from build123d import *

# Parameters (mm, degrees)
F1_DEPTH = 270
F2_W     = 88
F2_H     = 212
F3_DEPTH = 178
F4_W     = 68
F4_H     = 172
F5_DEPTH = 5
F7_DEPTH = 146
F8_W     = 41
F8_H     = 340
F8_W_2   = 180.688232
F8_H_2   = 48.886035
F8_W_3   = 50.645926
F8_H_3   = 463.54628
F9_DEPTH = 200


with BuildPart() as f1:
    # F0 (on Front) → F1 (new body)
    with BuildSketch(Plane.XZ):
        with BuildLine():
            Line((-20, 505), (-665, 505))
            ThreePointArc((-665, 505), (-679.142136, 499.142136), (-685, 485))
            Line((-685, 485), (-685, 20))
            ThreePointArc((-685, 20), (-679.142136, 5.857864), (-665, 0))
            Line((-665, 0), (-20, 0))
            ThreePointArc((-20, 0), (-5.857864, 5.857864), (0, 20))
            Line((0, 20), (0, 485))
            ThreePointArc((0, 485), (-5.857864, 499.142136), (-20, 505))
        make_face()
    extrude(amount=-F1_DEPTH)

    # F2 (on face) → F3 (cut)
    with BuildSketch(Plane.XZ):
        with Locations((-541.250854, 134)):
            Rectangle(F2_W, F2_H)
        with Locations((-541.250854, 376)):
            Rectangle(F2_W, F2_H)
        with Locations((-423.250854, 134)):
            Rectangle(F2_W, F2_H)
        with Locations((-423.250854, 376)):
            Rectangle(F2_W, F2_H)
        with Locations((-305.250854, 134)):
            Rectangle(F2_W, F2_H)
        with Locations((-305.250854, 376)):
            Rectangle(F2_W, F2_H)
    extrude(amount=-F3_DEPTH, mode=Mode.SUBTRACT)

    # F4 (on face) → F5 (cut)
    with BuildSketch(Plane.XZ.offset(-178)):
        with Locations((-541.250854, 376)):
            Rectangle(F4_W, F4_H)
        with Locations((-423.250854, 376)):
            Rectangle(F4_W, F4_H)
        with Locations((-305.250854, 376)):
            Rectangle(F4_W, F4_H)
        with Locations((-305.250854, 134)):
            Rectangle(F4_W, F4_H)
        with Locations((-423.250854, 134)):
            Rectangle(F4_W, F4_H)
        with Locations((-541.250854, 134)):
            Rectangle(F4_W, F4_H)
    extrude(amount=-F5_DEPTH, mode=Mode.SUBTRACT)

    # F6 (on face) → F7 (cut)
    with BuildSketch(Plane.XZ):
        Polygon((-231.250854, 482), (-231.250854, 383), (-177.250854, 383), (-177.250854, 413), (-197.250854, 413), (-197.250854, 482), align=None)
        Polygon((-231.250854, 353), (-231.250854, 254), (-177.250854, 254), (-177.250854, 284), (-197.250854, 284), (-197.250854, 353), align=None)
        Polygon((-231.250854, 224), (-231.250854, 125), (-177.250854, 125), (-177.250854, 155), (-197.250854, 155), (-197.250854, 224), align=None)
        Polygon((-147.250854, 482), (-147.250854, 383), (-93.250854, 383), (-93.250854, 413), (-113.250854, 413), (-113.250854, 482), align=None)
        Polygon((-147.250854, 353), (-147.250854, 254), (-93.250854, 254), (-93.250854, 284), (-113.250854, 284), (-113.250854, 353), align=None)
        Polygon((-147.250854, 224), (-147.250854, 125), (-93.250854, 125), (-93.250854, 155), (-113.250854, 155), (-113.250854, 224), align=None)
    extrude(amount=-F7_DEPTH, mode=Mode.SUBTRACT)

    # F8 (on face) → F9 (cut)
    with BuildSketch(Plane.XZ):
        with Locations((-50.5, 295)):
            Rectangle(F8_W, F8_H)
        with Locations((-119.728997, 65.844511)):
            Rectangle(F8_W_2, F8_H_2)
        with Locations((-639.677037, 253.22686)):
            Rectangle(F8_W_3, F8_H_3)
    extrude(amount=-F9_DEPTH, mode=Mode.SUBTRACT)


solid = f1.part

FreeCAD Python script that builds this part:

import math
import FreeCAD as App
import Part
import Sketcher

V = App.Vector

doc = App.newDocument("Part")
params = doc.addObject("Spreadsheet::Sheet", "Params")
for row, (alias, value) in enumerate([
    ("sketch1_radius", "19.999999 mm"),
    ("sketch1_width", "645 mm"),
    ("sketch1_height", "465 mm"),
    ("pad1_length", "270 mm"),
    ("sketch2_width", "88 mm"),
    ("sketch2_height", "212 mm"),
    ("pocket1_length", "178 mm"),
    ("sketch3_width", "68 mm"),
    ("sketch3_height", "172 mm"),
    ("pocket2_length", "5 mm"),
    ("sketch4_width", "54 mm"),
    ("sketch4_width2", "20 mm"),
    ("sketch4_height", "99 mm"),
    ("sketch4_height2", "30 mm"),
    ("pocket3_length", "146 mm"),
    ("sketch5_width", "41 mm"),
    ("sketch5_height", "340 mm"),
    ("pocket4_length", "200 mm"),
], start=1):
    params.set(f"A{row}", alias)
    params.set(f"B{row}", "=" + value)
    params.setAlias(f"B{row}", alias)

body = doc.addObject("PartDesign::Body", "Body")

sketch1 = body.newObject("Sketcher::SketchObject", "Sketch")
sketch1.AttachmentSupport = (doc.getObject("XZ_Plane"), [""])
sketch1.MapMode = "FlatFace"
sketch1.addGeometry([
    Part.LineSegment(V(-20, 505, 0), V(-665, 505, 0)),
    Part.ArcOfCircle(Part.Circle(V(-665, 485, 0), V(0, 0, 1), 20), math.radians(90), math.radians(180)),
    Part.LineSegment(V(-685, 485, 0), V(-685, 20, 0)),
    Part.ArcOfCircle(Part.Circle(V(-665, 20, 0), V(0, 0, 1), 20), math.radians(180), math.radians(270)),
    Part.LineSegment(V(-665, 0, 0), V(-20, 0, 0)),
    Part.ArcOfCircle(Part.Circle(V(-20, 20, 0), V(0, 0, 1), 20), math.radians(-90), math.radians(0)),
    Part.LineSegment(V(0, 20, 0), V(0, 485, 0)),
    Part.ArcOfCircle(Part.Circle(V(-20, 485, 0), V(0, 0, 1), 20), math.radians(0), math.radians(90)),
], False)
sketch1.addConstraint([
    Sketcher.Constraint("Tangent", 0, 2, 1, 1),
    Sketcher.Constraint("Tangent", 1, 2, 2, 1),
    Sketcher.Constraint("Tangent", 2, 2, 3, 1),
    Sketcher.Constraint("Tangent", 3, 2, 4, 1),
    Sketcher.Constraint("Tangent", 4, 2, 5, 1),
    Sketcher.Constraint("Tangent", 5, 2, 6, 1),
    Sketcher.Constraint("Tangent", 6, 2, 7, 1),
    Sketcher.Constraint("Tangent", 7, 2, 0, 1),
    Sketcher.Constraint("Horizontal", 0),
    Sketcher.Constraint("Vertical", 2),
    Sketcher.Constraint("Horizontal", 4),
    Sketcher.Constraint("Vertical", 6),
    Sketcher.Constraint("Equal", 1, 3),
    Sketcher.Constraint("Equal", 3, 5),
    Sketcher.Constraint("Equal", 5, 7),
    Sketcher.Constraint("PointOnObject", 3, 2, -1),
    Sketcher.Constraint("PointOnObject", 5, 2, -2),
    Sketcher.Constraint("Radius", 1, 19.999999),
    Sketcher.Constraint("DistanceX", 0, 2, 0, 1, 645.0),
    Sketcher.Constraint("DistanceY", 2, 2, 2, 1, 465.0),
])
sketch1.setExpression("Constraints[17]", "Params.sketch1_radius")
sketch1.setExpression("Constraints[18]", "Params.sketch1_width")
sketch1.setExpression("Constraints[19]", "Params.sketch1_height")
pad1 = body.newObject("PartDesign::Pad", "Pad")
pad1.Profile = sketch1
pad1.setExpression("Length", "Params.pad1_length")
pad1.Reversed = True

sketch2 = body.newObject("Sketcher::SketchObject", "Sketch001")
sketch2.AttachmentSupport = (doc.getObject("XZ_Plane"), [""])
sketch2.MapMode = "FlatFace"
sketch2.addGeometry([
    Part.LineSegment(V(-585, 240, 0), V(-585, 28, 0)),
    Part.LineSegment(V(-585, 28, 0), V(-497, 28, 0)),
    Part.LineSegment(V(-497, 28, 0), V(-497, 240, 0)),
    Part.LineSegment(V(-497, 240, 0), V(-585, 240, 0)),
    Part.LineSegment(V(-585, 482, 0), V(-585, 270, 0)),
    Part.LineSegment(V(-585, 270, 0), V(-497, 270, 0)),
    Part.LineSegment(V(-497, 270, 0), V(-497, 482, 0)),
    Part.LineSegment(V(-497, 482, 0), V(-585, 482, 0)),
    Part.LineSegment(V(-467, 240, 0), V(-467, 28, 0)),
    Part.LineSegment(V(-467, 28, 0), V(-379, 28, 0)),
    Part.LineSegment(V(-379, 28, 0), V(-379, 240, 0)),
    Part.LineSegment(V(-379, 240, 0), V(-467, 240, 0)),
    Part.LineSegment(V(-467, 482, 0), V(-467, 270, 0)),
    Part.LineSegment(V(-467, 270, 0), V(-379, 270, 0)),
    Part.LineSegment(V(-379, 270, 0), V(-379, 482, 0)),
    Part.LineSegment(V(-379, 482, 0), V(-467, 482, 0)),
    Part.LineSegment(V(-349, 240, 0), V(-349, 28, 0)),
    Part.LineSegment(V(-349, 28, 0), V(-261, 28, 0)),
    Part.LineSegment(V(-261, 28, 0), V(-261, 240, 0)),
    Part.LineSegment(V(-261, 240, 0), V(-349, 240, 0)),
    Part.LineSegment(V(-349, 482, 0), V(-349, 270, 0)),
    Part.LineSegment(V(-349, 270, 0), V(-261, 270, 0)),
    Part.LineSegment(V(-261, 270, 0), V(-261, 482, 0)),
    Part.LineSegment(V(-261, 482, 0), V(-349, 482, 0)),
], False)
sketch2.addConstraint([
    Sketcher.Constraint("Coincident", 0, 2, 1, 1),
    Sketcher.Constraint("Coincident", 1, 2, 2, 1),
    Sketcher.Constraint("Coincident", 2, 2, 3, 1),
    Sketcher.Constraint("Coincident", 3, 2, 0, 1),
    Sketcher.Constraint("Coincident", 4, 2, 5, 1),
    Sketcher.Constraint("Coincident", 5, 2, 6, 1),
    Sketcher.Constraint("Coincident", 6, 2, 7, 1),
    Sketcher.Constraint("Coincident", 7, 2, 4, 1),
    Sketcher.Constraint("Coincident", 8, 2, 9, 1),
    Sketcher.Constraint("Coincident", 9, 2, 10, 1),
    Sketcher.Constraint("Coincident", 10, 2, 11, 1),
    Sketcher.Constraint("Coincident", 11, 2, 8, 1),
    Sketcher.Constraint("Coincident", 12, 2, 13, 1),
    Sketcher.Constraint("Coincident", 13, 2, 14, 1),
    Sketcher.Constraint("Coincident", 14, 2, 15, 1),
    Sketcher.Constraint("Coincident", 15, 2, 12, 1),
    Sketcher.Constraint("Coincident", 16, 2, 17, 1),
    Sketcher.Constraint("Coincident", 17, 2, 18, 1),
    Sketcher.Constraint("Coincident", 18, 2, 19, 1),
    Sketcher.Constraint("Coincident", 19, 2, 16, 1),
    Sketcher.Constraint("Coincident", 20, 2, 21, 1),
    Sketcher.Constraint("Coincident", 21, 2, 22, 1),
    Sketcher.Constraint("Coincident", 22, 2, 23, 1),
    Sketcher.Constraint("Coincident", 23, 2, 20, 1),
    Sketcher.Constraint("Vertical", 0),
    Sketcher.Constraint("Horizontal", 1),
    Sketcher.Constraint("Vertical", 2),
    Sketcher.Constraint("Horizontal", 3),
    Sketcher.Constraint("Vertical", 4),
    Sketcher.Constraint("Horizontal", 5),
    Sketcher.Constraint("Vertical", 6),
    Sketcher.Constraint("Horizontal", 7),
    Sketcher.Constraint("Vertical", 8),
    Sketcher.Constraint("Horizontal", 9),
    Sketcher.Constraint("Vertical", 10),
    Sketcher.Constraint("Horizontal", 11),
    Sketcher.Constraint("Vertical", 12),
    Sketcher.Constraint("Horizontal", 13),
    Sketcher.Constraint("Vertical", 14),
    Sketcher.Constraint("Horizontal", 15),
    Sketcher.Constraint("Vertical", 16),
    Sketcher.Constraint("Horizontal", 17),
    Sketcher.Constraint("Vertical", 18),
    Sketcher.Constraint("Horizontal", 19),
    Sketcher.Constraint("Vertical", 20),
    Sketcher.Constraint("Horizontal", 21),
    Sketcher.Constraint("Vertical", 22),
    Sketcher.Constraint("Horizontal", 23),
    Sketcher.Constraint("Horizontal", 1, 2, 8, 2),
    Sketcher.Constraint("Horizontal", 3, 2, 10, 2),
    Sketcher.Constraint("Horizontal", 5, 2, 12, 2),
    Sketcher.Constraint("Horizontal", 7, 2, 14, 2),
    Sketcher.Constraint("Horizontal", 9, 2, 16, 2),
    Sketcher.Constraint("Horizontal", 11, 2, 18, 2),
    Sketcher.Constraint("Horizontal", 13, 2, 20, 2),
    Sketcher.Constraint("Horizontal", 15, 2, 22, 2),
    Sketcher.Constraint("Vertical", 3, 2, 4, 2),
    Sketcher.Constraint("Vertical", 2, 2, 5, 2),
    Sketcher.Constraint("Vertical", 11, 2, 12, 2),
    Sketcher.Constraint("Vertical", 10, 2, 13, 2),
    Sketcher.Constraint("Vertical", 19, 2, 20, 2),
    Sketcher.Constraint("Vertical", 18, 2, 21, 2),
    Sketcher.Constraint("Equal", 7, 9),
    Sketcher.Constraint("Equal", 15, 17),
    Sketcher.Constraint("Equal", 2, 4),
    Sketcher.Constraint("DistanceX", 1, 1, 1, 2, 88.0),
    Sketcher.Constraint("DistanceY", 0, 2, 0, 1, 212.0),
    Sketcher.Constraint("DistanceY", -1, 1, 0, 2, 28.0),
    Sketcher.Constraint("DistanceY", -1, 1, 4, 2, 270.0),
    Sketcher.Constraint("DistanceX", 1, 2, 8, 2, 30.0),
    Sketcher.Constraint("DistanceX", 9, 2, 16, 2, 30.0),
    Sketcher.Constraint("DistanceX", 0, 2, -1, 1, 585.250854),
])
sketch2.setExpression("Constraints[65]", "Params.sketch2_width")
sketch2.setExpression("Constraints[66]", "Params.sketch2_height")
pocket1 = body.newObject("PartDesign::Pocket", "Pocket")
pocket1.Profile = sketch2
pocket1.setExpression("Length", "Params.pocket1_length")

sketch3 = body.newObject("Sketcher::SketchObject", "Sketch002")
sketch3.AttachmentSupport = (doc.getObject("XZ_Plane"), [""])
sketch3.MapMode = "FlatFace"
sketch3.AttachmentOffset = App.Placement(V(0, 0, -178), App.Rotation())
sketch3.addGeometry([
    Part.LineSegment(V(-575, 462, 0), V(-575, 290, 0)),
    Part.LineSegment(V(-575, 290, 0), V(-507, 290, 0)),
    Part.LineSegment(V(-507, 290, 0), V(-507, 462, 0)),
    Part.LineSegment(V(-507, 462, 0), V(-575, 462, 0)),
    Part.LineSegment(V(-457, 462, 0), V(-457, 290, 0)),
    Part.LineSegment(V(-457, 290, 0), V(-389, 290, 0)),
    Part.LineSegment(V(-389, 290, 0), V(-389, 462, 0)),
    Part.LineSegment(V(-389, 462, 0), V(-457, 462, 0)),
    Part.LineSegment(V(-339, 462, 0), V(-339, 290, 0)),
    Part.LineSegment(V(-339, 290, 0), V(-271, 290, 0)),
    Part.LineSegment(V(-271, 290, 0), V(-271, 462, 0)),
    Part.LineSegment(V(-271, 462, 0), V(-339, 462, 0)),
    Part.LineSegment(V(-339, 220, 0), V(-339, 48, 0)),
    Part.LineSegment(V(-339, 48, 0), V(-271, 48, 0)),
    Part.LineSegment(V(-271, 48, 0), V(-271, 220, 0)),
    Part.LineSegment(V(-271, 220, 0), V(-339, 220, 0)),
    Part.LineSegment(V(-457, 220, 0), V(-457, 48, 0)),
    Part.LineSegment(V(-457, 48, 0), V(-389, 48, 0)),
    Part.LineSegment(V(-389, 48, 0), V(-389, 220, 0)),
    Part.LineSegment(V(-389, 220, 0), V(-457, 220, 0)),
    Part.LineSegment(V(-575, 220, 0), V(-575, 48, 0)),
    Part.LineSegment(V(-575, 48, 0), V(-507, 48, 0)),
    Part.LineSegment(V(-507, 48, 0), V(-507, 220, 0)),
    Part.LineSegment(V(-507, 220, 0), V(-575, 220, 0)),
], False)
sketch3.addConstraint([
    Sketcher.Constraint("Coincident", 0, 2, 1, 1),
    Sketcher.Constraint("Coincident", 1, 2, 2, 1),
    Sketcher.Constraint("Coincident", 2, 2, 3, 1),
    Sketcher.Constraint("Coincident", 3, 2, 0, 1),
    Sketcher.Constraint("Coincident", 4, 2, 5, 1),
    Sketcher.Constraint("Coincident", 5, 2, 6, 1),
    Sketcher.Constraint("Coincident", 6, 2, 7, 1),
    Sketcher.Constraint("Coincident", 7, 2, 4, 1),
    Sketcher.Constraint("Coincident", 8, 2, 9, 1),
    Sketcher.Constraint("Coincident", 9, 2, 10, 1),
    Sketcher.Constraint("Coincident", 10, 2, 11, 1),
    Sketcher.Constraint("Coincident", 11, 2, 8, 1),
    Sketcher.Constraint("Coincident", 12, 2, 13, 1),
    Sketcher.Constraint("Coincident", 13, 2, 14, 1),
    Sketcher.Constraint("Coincident", 14, 2, 15, 1),
    Sketcher.Constraint("Coincident", 15, 2, 12, 1),
    Sketcher.Constraint("Coincident", 16, 2, 17, 1),
    Sketcher.Constraint("Coincident", 17, 2, 18, 1),
    Sketcher.Constraint("Coincident", 18, 2, 19, 1),
    Sketcher.Constraint("Coincident", 19, 2, 16, 1),
    Sketcher.Constraint("Coincident", 20, 2, 21, 1),
    Sketcher.Constraint("Coincident", 21, 2, 22, 1),
    Sketcher.Constraint("Coincident", 22, 2, 23, 1),
    Sketcher.Constraint("Coincident", 23, 2, 20, 1),
    Sketcher.Constraint("Vertical", 0),
    Sketcher.Constraint("Horizontal", 1),
    Sketcher.Constraint("Vertical", 2),
    Sketcher.Constraint("Horizontal", 3),
    Sketcher.Constraint("Vertical", 4),
    Sketcher.Constraint("Horizontal", 5),
    Sketcher.Constraint("Vertical", 6),
    Sketcher.Constraint("Horizontal", 7),
    Sketcher.Constraint("Vertical", 8),
    Sketcher.Constraint("Horizontal", 9),
    Sketcher.Constraint("Vertical", 10),
    Sketcher.Constraint("Horizontal", 11),
    Sketcher.Constraint("Vertical", 12),
    Sketcher.Constraint("Horizontal", 13),
    Sketcher.Constraint("Vertical", 14),
    Sketcher.Constraint("Horizontal", 15),
    Sketcher.Constraint("Vertical", 16),
    Sketcher.Constraint("Horizontal", 17),
    Sketcher.Constraint("Vertical", 18),
    Sketcher.Constraint("Horizontal", 19),
    Sketcher.Constraint("Vertical", 20),
    Sketcher.Constraint("Horizontal", 21),
    Sketcher.Constraint("Vertical", 22),
    Sketcher.Constraint("Horizontal", 23),
    Sketcher.Constraint("Horizontal", 1, 2, 4, 2),
    Sketcher.Constraint("Horizontal", 3, 2, 6, 2),
    Sketcher.Constraint("Horizontal", 5, 2, 8, 2),
    Sketcher.Constraint("Horizontal", 7, 2, 10, 2),
    Sketcher.Constraint("Horizontal", 13, 2, 16, 2),
    Sketcher.Constraint("Horizontal", 15, 2, 18, 2),
    Sketcher.Constraint("Horizontal", 17, 2, 20, 2),
    Sketcher.Constraint("Horizontal", 19, 2, 22, 2),
    Sketcher.Constraint("Vertical", 11, 2, 12, 2),
    Sketcher.Constraint("Vertical", 10, 2, 13, 2),
    Sketcher.Constraint("Vertical", 7, 2, 16, 2),
    Sketcher.Constraint("Vertical", 6, 2, 17, 2),
    Sketcher.Constraint("Vertical", 3, 2, 20, 2),
    Sketcher.Constraint("Vertical", 2, 2, 21, 2),
    Sketcher.Constraint("Equal", 3, 5),
    Sketcher.Constraint("Equal", 7, 9),
    Sketcher.Constraint("Equal", 10, 12),
    Sketcher.Constraint("DistanceX", 1, 1, 1, 2, 68.0),
    Sketcher.Constraint("DistanceY", 0, 2, 0, 1, 172.0),
    Sketcher.Constraint("DistanceY", -1, 1, 0, 2, 290.0),
    Sketcher.Constraint("DistanceY", -1, 1, 12, 2, 48.0),
    Sketcher.Constraint("DistanceX", 1, 2, 4, 2, 50.0),
    Sketcher.Constraint("DistanceX", 5, 2, 8, 2, 50.0),
    Sketcher.Constraint("DistanceX", 0, 2, -1, 1, 575.250854),
])
sketch3.setExpression("Constraints[65]", "Params.sketch3_width")
sketch3.setExpression("Constraints[66]", "Params.sketch3_height")
pocket2 = body.newObject("PartDesign::Pocket", "Pocket001")
pocket2.Profile = sketch3
pocket2.setExpression("Length", "Params.pocket2_length")

sketch4 = body.newObject("Sketcher::SketchObject", "Sketch003")
sketch4.AttachmentSupport = (doc.getObject("XZ_Plane"), [""])
sketch4.MapMode = "FlatFace"
sketch4.addGeometry([
    Part.LineSegment(V(-231, 482, 0), V(-231, 383, 0)),
    Part.LineSegment(V(-231, 383, 0), V(-177, 383, 0)),
    Part.LineSegment(V(-177, 383, 0), V(-177, 413, 0)),
    Part.LineSegment(V(-177, 413, 0), V(-197, 413, 0)),
    Part.LineSegment(V(-197, 413, 0), V(-197, 482, 0)),
    Part.LineSegment(V(-197, 482, 0), V(-231, 482, 0)),
    Part.LineSegment(V(-231, 353, 0), V(-231, 254, 0)),
    Part.LineSegment(V(-231, 254, 0), V(-177, 254, 0)),
    Part.LineSegment(V(-177, 254, 0), V(-177, 284, 0)),
    Part.LineSegment(V(-177, 284, 0), V(-197, 284, 0)),
    Part.LineSegment(V(-197, 284, 0), V(-197, 353, 0)),
    Part.LineSegment(V(-197, 353, 0), V(-231, 353, 0)),
    Part.LineSegment(V(-231, 224, 0), V(-231, 125, 0)),
    Part.LineSegment(V(-231, 125, 0), V(-177, 125, 0)),
    Part.LineSegment(V(-177, 125, 0), V(-177, 155, 0)),
    Part.LineSegment(V(-177, 155, 0), V(-197, 155, 0)),
    Part.LineSegment(V(-197, 155, 0), V(-197, 224, 0)),
    Part.LineSegment(V(-197, 224, 0), V(-231, 224, 0)),
    Part.LineSegment(V(-147, 482, 0), V(-147, 383, 0)),
    Part.LineSegment(V(-147, 383, 0), V(-93, 383, 0)),
    Part.LineSegment(V(-93, 383, 0), V(-93, 413, 0)),
    Part.LineSegment(V(-93, 413, 0), V(-113, 413, 0)),
    Part.LineSegment(V(-113, 413, 0), V(-113, 482, 0)),
    Part.LineSegment(V(-113, 482, 0), V(-147, 482, 0)),
    Part.LineSegment(V(-147, 353, 0), V(-147, 254, 0)),
    Part.LineSegment(V(-147, 254, 0), V(-93, 254, 0)),
    Part.LineSegment(V(-93, 254, 0), V(-93, 284, 0)),
    Part.LineSegment(V(-93, 284, 0), V(-113, 284, 0)),
    Part.LineSegment(V(-113, 284, 0), V(-113, 353, 0)),
    Part.LineSegment(V(-113, 353, 0), V(-147, 353, 0)),
    Part.LineSegment(V(-147, 224, 0), V(-147, 125, 0)),
    Part.LineSegment(V(-147, 125, 0), V(-93, 125, 0)),
    Part.LineSegment(V(-93, 125, 0), V(-93, 155, 0)),
    Part.LineSegment(V(-93, 155, 0), V(-113, 155, 0)),
    Part.LineSegment(V(-113, 155, 0), V(-113, 224, 0)),
    Part.LineSegment(V(-113, 224, 0), V(-147, 224, 0)),
], False)
sketch4.addConstraint([
    Sketcher.Constraint("Coincident", 0, 2, 1, 1),
    Sketcher.Constraint("Coincident", 1, 2, 2, 1),
    Sketcher.Constraint("Coincident", 2, 2, 3, 1),
    Sketcher.Constraint("Coincident", 3, 2, 4, 1),
    Sketcher.Constraint("Coincident", 4, 2, 5, 1),
    Sketcher.Constraint("Coincident", 5, 2, 0, 1),
    Sketcher.Constraint("Coincident", 6, 2, 7, 1),
    Sketcher.Constraint("Coincident", 7, 2, 8, 1),
    Sketcher.Constraint("Coincident", 8, 2, 9, 1),
    Sketcher.Constraint("Coincident", 9, 2, 10, 1),
    Sketcher.Constraint("Coincident", 10, 2, 11, 1),
    Sketcher.Constraint("Coincident", 11, 2, 6, 1),
    Sketcher.Constraint("Coincident", 12, 2, 13, 1),
    Sketcher.Constraint("Coincident", 13, 2, 14, 1),
    Sketcher.Constraint("Coincident", 14, 2, 15, 1),
    Sketcher.Constraint("Coincident", 15, 2, 16, 1),
    Sketcher.Constraint("Coincident", 16, 2, 17, 1),
    Sketcher.Constraint("Coincident", 17, 2, 12, 1),
    Sketcher.Constraint("Coincident", 18, 2, 19, 1),
    Sketcher.Constraint("Coincident", 19, 2, 20, 1),
    Sketcher.Constraint("Coincident", 20, 2, 21, 1),
    Sketcher.Constraint("Coincident", 21, 2, 22, 1),
    Sketcher.Constraint("Coincident", 22, 2, 23, 1),
    Sketcher.Constraint("Coincident", 23, 2, 18, 1),
    Sketcher.Constraint("Coincident", 24, 2, 25, 1),
    Sketcher.Constraint("Coincident", 25, 2, 26, 1),
    Sketcher.Constraint("Coincident", 26, 2, 27, 1),
    Sketcher.Constraint("Coincident", 27, 2, 28, 1),
    Sketcher.Constraint("Coincident", 28, 2, 29, 1),
    Sketcher.Constraint("Coincident", 29, 2, 24, 1),
    Sketcher.Constraint("Coincident", 30, 2, 31, 1),
    Sketcher.Constraint("Coincident", 31, 2, 32, 1),
    Sketcher.Constraint("Coincident", 32, 2, 33, 1),
    Sketcher.Constraint("Coincident", 33, 2, 34, 1),
    Sketcher.Constraint("Coincident", 34, 2, 35, 1),
    Sketcher.Constraint("Coincident", 35, 2, 30, 1),
    Sketcher.Constraint("Vertical", 0),
    Sketcher.Constraint("Horizontal", 1),
    Sketcher.Constraint("Vertical", 2),
    Sketcher.Constraint("Horizontal", 3),
    Sketcher.Constraint("Vertical", 4),
    Sketcher.Constraint("Horizontal", 5),
    Sketcher.Constraint("Vertical", 6),
    Sketcher.Constraint("Horizontal", 7),
    Sketcher.Constraint("Vertical", 8),
    Sketcher.Constraint("Horizontal", 9),
    Sketcher.Constraint("Vertical", 10),
    Sketcher.Constraint("Horizontal", 11),
    Sketcher.Constraint("Vertical", 12),
    Sketcher.Constraint("Horizontal", 13),
    Sketcher.Constraint("Vertical", 14),
    Sketcher.Constraint("Horizontal", 15),
    Sketcher.Constraint("Vertical", 16),
    Sketcher.Constraint("Horizontal", 17),
    Sketcher.Constraint("Vertical", 18),
    Sketcher.Constraint("Horizontal", 19),
    Sketcher.Constraint("Vertical", 20),
    Sketcher.Constraint("Horizontal", 21),
    Sketcher.Constraint("Vertical", 22),
    Sketcher.Constraint("Horizontal", 23),
    Sketcher.Constraint("Vertical", 24),
    Sketcher.Constraint("Horizontal", 25),
    Sketcher.Constraint("Vertical", 26),
    Sketcher.Constraint("Horizontal", 27),
    Sketcher.Constraint("Vertical", 28),
    Sketcher.Constraint("Horizontal", 29),
    Sketcher.Constraint("Vertical", 30),
    Sketcher.Constraint("Horizontal", 31),
    Sketcher.Constraint("Vertical", 32),
    Sketcher.Constraint("Horizontal", 33),
    Sketcher.Constraint("Vertical", 34),
    Sketcher.Constraint("Horizontal", 35),
    Sketcher.Constraint("Horizontal", 1, 2, 18, 2),
    Sketcher.Constraint("Horizontal", 3, 2, 20, 2),
    Sketcher.Constraint("Horizontal", 5, 2, 22, 2),
    Sketcher.Constraint("Horizontal", 7, 2, 24, 2),
    Sketcher.Constraint("Horizontal", 9, 2, 26, 2),
    Sketcher.Constraint("Horizontal", 11, 2, 28, 2),
    Sketcher.Constraint("Horizontal", 13, 2, 30, 2),
    Sketcher.Constraint("Horizontal", 15, 2, 32, 2),
    Sketcher.Constraint("Horizontal", 17, 2, 34, 2),
    Sketcher.Constraint("Vertical", 5, 2, 6, 2),
    Sketcher.Constraint("Vertical", 2, 2, 7, 2),
    Sketcher.Constraint("Vertical", 4, 2, 9, 2),
    Sketcher.Constraint("Vertical", 11, 2, 12, 2),
    Sketcher.Constraint("Vertical", 8, 2, 13, 2),
    Sketcher.Constraint("Vertical", 10, 2, 15, 2),
    Sketcher.Constraint("Vertical", 23, 2, 24, 2),
    Sketcher.Constraint("Vertical", 20, 2, 25, 2),
    Sketcher.Constraint("Vertical", 22, 2, 27, 2),
    Sketcher.Constraint("Vertical", 29, 2, 30, 2),
    Sketcher.Constraint("Vertical", 26, 2, 31, 2),
    Sketcher.Constraint("Vertical", 28, 2, 33, 2),
    Sketcher.Constraint("Equal", 13, 19),
    Sketcher.Constraint("Equal", 15, 21),
    Sketcher.Constraint("Equal", 0, 6),
    Sketcher.Constraint("Equal", 2, 8),
    Sketcher.Constraint("Equal", 6, 12),
    Sketcher.Constraint("Equal", 8, 14),
    Sketcher.Constraint("DistanceX", 1, 1, 1, 2, 54.0),
    Sketcher.Constraint("DistanceX", 3, 2, 3, 1, 20.0),
    Sketcher.Constraint("DistanceY", 0, 2, 0, 1, 99.0),
    Sketcher.Constraint("DistanceY", 2, 1, 2, 2, 30.0),
    Sketcher.Constraint("DistanceY", -1, 1, 0, 2, 383.0),
    Sketcher.Constraint("DistanceY", -1, 1, 6, 2, 254.0),
    Sketcher.Constraint("DistanceY", -1, 1, 12, 2, 125.0),
    Sketcher.Constraint("DistanceX", 1, 2, 18, 2, 30.0),
    Sketcher.Constraint("DistanceX", 0, 2, -1, 1, 231.250854),
])
sketch4.setExpression("Constraints[99]", "Params.sketch4_width")
sketch4.setExpression("Constraints[100]", "Params.sketch4_width2")
sketch4.setExpression("Constraints[101]", "Params.sketch4_height")
sketch4.setExpression("Constraints[102]", "Params.sketch4_height2")
pocket3 = body.newObject("PartDesign::Pocket", "Pocket002")
pocket3.Profile = sketch4
pocket3.setExpression("Length", "Params.pocket3_length")

sketch5 = body.newObject("Sketcher::SketchObject", "Sketch004")
sketch5.AttachmentSupport = (doc.getObject("XZ_Plane"), [""])
sketch5.MapMode = "FlatFace"
sketch5.addGeometry([
    Part.LineSegment(V(-71, 465, 0), V(-71, 125, 0)),
    Part.LineSegment(V(-71, 125, 0), V(-30, 125, 0)),
    Part.LineSegment(V(-30, 125, 0), V(-30, 465, 0)),
    Part.LineSegment(V(-30, 465, 0), V(-71, 465, 0)),
    Part.LineSegment(V(-210, 90, 0), V(-210, 41, 0)),
    Part.LineSegment(V(-210, 41, 0), V(-29, 41, 0)),
    Part.LineSegment(V(-29, 41, 0), V(-29, 90, 0)),
    Part.LineSegment(V(-29, 90, 0), V(-210, 90, 0)),
    Part.LineSegment(V(-665, 485, 0), V(-665, 21, 0)),
    Part.LineSegment(V(-665, 21, 0), V(-614, 21, 0)),
    Part.LineSegment(V(-614, 21, 0), V(-614, 485, 0)),
    Part.LineSegment(V(-614, 485, 0), V(-665, 485, 0)),
], False)
sketch5.addConstraint([
    Sketcher.Constraint("Coincident", 0, 2, 1, 1),
    Sketcher.Constraint("Coincident", 1, 2, 2, 1),
    Sketcher.Constraint("Coincident", 2, 2, 3, 1),
    Sketcher.Constraint("Coincident", 3, 2, 0, 1),
    Sketcher.Constraint("Coincident", 4, 2, 5, 1),
    Sketcher.Constraint("Coincident", 5, 2, 6, 1),
    Sketcher.Constraint("Coincident", 6, 2, 7, 1),
    Sketcher.Constraint("Coincident", 7, 2, 4, 1),
    Sketcher.Constraint("Coincident", 8, 2, 9, 1),
    Sketcher.Constraint("Coincident", 9, 2, 10, 1),
    Sketcher.Constraint("Coincident", 10, 2, 11, 1),
    Sketcher.Constraint("Coincident", 11, 2, 8, 1),
    Sketcher.Constraint("Vertical", 0),
    Sketcher.Constraint("Horizontal", 1),
    Sketcher.Constraint("Vertical", 2),
    Sketcher.Constraint("Horizontal", 3),
    Sketcher.Constraint("Vertical", 4),
    Sketcher.Constraint("Horizontal", 5),
    Sketcher.Constraint("Vertical", 6),
    Sketcher.Constraint("Horizontal", 7),
    Sketcher.Constraint("Vertical", 8),
    Sketcher.Constraint("Horizontal", 9),
    Sketcher.Constraint("Vertical", 10),
    Sketcher.Constraint("Horizontal", 11),
    Sketcher.Constraint("DistanceX", 1, 1, 1, 2, 41.0),
    Sketcher.Constraint("DistanceY", 0, 2, 0, 1, 340.0),
    Sketcher.Constraint("DistanceX", 0, 2, -1, 1, 71.0),
    Sketcher.Constraint("DistanceY", -1, 1, 0, 2, 125.0),
    Sketcher.Constraint("DistanceX", 8, 2, -1, 1, 665.0),
    Sketcher.Constraint("DistanceY", -1, 1, 10, 2, 485.0),
    Sketcher.Constraint("DistanceX", 5, 1, 5, 2, 180.688232),
    Sketcher.Constraint("DistanceY", 8, 2, 8, 1, 463.54628),
    Sketcher.Constraint("DistanceX", 9, 1, 9, 2, 50.645926),
    Sketcher.Constraint("DistanceY", 4, 2, 4, 1, 48.886035),
    Sketcher.Constraint("DistanceX", 5, 2, -1, 1, 29.384881),
    Sketcher.Constraint("DistanceY", -1, 1, 6, 2, 90.287528),
])
sketch5.setExpression("Constraints[24]", "Params.sketch5_width")
sketch5.setExpression("Constraints[25]", "Params.sketch5_height")
pocket4 = body.newObject("PartDesign::Pocket", "Pocket003")
pocket4.Profile = sketch5
pocket4.setExpression("Length", "Params.pocket4_length")

doc.recompute()
